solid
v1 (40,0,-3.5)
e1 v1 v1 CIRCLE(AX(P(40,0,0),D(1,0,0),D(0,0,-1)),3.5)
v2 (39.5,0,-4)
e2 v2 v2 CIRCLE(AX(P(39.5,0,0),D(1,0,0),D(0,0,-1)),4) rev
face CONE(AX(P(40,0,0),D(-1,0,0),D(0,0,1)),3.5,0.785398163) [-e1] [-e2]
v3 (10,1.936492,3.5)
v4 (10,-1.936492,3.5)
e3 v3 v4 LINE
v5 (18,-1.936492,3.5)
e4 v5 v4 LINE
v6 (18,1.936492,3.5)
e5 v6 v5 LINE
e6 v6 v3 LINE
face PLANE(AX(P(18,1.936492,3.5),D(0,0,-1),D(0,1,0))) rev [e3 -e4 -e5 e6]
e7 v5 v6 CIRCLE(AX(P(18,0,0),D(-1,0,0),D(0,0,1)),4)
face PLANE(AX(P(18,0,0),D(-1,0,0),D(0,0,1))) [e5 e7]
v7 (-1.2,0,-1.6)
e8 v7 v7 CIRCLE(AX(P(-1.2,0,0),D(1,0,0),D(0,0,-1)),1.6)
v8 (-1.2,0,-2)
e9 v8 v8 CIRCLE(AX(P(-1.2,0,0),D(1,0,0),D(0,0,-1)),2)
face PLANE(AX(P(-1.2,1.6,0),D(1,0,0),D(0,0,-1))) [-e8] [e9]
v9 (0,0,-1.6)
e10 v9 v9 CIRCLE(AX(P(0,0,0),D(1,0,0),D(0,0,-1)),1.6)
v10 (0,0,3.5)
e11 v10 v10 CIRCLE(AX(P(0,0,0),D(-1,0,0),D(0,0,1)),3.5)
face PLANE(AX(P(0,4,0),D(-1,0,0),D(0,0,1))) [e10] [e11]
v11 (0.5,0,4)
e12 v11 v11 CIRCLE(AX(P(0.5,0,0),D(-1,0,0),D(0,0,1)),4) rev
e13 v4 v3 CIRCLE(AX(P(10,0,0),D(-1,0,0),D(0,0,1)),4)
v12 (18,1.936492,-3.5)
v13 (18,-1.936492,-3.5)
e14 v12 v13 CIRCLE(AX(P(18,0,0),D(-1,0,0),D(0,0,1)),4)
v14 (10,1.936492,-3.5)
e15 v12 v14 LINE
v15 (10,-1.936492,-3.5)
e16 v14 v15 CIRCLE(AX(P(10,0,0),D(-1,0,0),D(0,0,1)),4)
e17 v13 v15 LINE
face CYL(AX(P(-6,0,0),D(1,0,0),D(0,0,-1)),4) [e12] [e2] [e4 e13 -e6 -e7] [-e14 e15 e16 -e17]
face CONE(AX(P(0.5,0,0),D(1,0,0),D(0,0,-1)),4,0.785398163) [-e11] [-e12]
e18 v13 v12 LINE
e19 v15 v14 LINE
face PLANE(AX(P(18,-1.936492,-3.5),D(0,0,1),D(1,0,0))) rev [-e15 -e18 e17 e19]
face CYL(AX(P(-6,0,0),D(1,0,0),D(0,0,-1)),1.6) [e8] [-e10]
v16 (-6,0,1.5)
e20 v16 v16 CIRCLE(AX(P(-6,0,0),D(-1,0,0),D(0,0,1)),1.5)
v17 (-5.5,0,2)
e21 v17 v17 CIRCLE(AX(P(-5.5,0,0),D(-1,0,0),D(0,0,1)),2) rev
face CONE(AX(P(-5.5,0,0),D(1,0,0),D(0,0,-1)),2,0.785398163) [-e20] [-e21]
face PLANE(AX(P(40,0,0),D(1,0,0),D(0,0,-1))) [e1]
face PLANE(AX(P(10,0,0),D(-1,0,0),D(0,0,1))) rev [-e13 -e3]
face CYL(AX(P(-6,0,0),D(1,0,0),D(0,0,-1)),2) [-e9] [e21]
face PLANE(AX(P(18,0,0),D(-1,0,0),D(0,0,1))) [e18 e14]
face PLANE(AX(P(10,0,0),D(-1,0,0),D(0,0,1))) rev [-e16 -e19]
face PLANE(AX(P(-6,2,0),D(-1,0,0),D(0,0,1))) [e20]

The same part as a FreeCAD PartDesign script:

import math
import FreeCAD as App
import Part
import Sketcher
from FreeCAD import Vector


def edges_at(feature, points):
    """Names of the edges that pass closest to the given points."""
    edges = feature.Shape.Edges
    near = lambda p: min(range(len(edges)), key=lambda i: edges[i].distToShape(Part.Vertex(*p))[0])
    return sorted({f"Edge{near(p) + 1}" for p in points})

doc = App.newDocument("Part")
params = doc.addObject("Spreadsheet::Sheet", "Params")
for row, (alias, value) in enumerate([
    ("sketch1_width", "46 mm"),
    ("sketch1_width2", "40 mm"),
    ("sketch1_height", "2 mm"),
    ("sketch1_height2", "4 mm"),
    ("sketch1_width3", "1.2 mm"),
    ("revolution_angle", "360 deg"),
    ("sketch2_radius", "4 mm"),
    ("pocket1_length", "8 mm"),
    ("sketch3_radius", "4 mm"),
    ("pocket2_length", "8 mm"),
    ("chamfer_size", "0.5 mm"),
], start=1):
    params.set(f"A{row}", alias)
    params.set(f"B{row}", "=" + value)
    params.setAlias(f"B{row}", alias)

body = doc.addObject("PartDesign::Body", "Body")

sketch1 = doc.addObject("Sketcher::SketchObject", "Sketch")
body.addObject(sketch1)
sketch1.AttachmentSupport = (doc.XY_Plane, [""])
sketch1.MapMode = "FlatFace"
sketch1.addGeometry(Part.LineSegment(Vector(-6, 2, 0), Vector(-6, 0, 0)), False)
sketch1.addGeometry(Part.LineSegment(Vector(-6, 0, 0), Vector(40, 0, 0)), False)
sketch1.addGeometry(Part.LineSegment(Vector(40, 0, 0), Vector(40, 4, 0)), False)
sketch1.addGeometry(Part.LineSegment(Vector(40, 4, 0), Vector(0, 4, 0)), False)
sketch1.addGeometry(Part.LineSegment(Vector(0, 4, 0), Vector(0, 1.6, 0)), False)
sketch1.addGeometry(Part.LineSegment(Vector(0, 1.6, 0), Vector(-1.2, 1.6, 0)), False)
sketch1.addGeometry(Part.LineSegment(Vector(-1.2, 1.6, 0), Vector(-1.2, 2, 0)), False)
sketch1.addGeometry(Part.LineSegment(Vector(-1.2, 2, 0), Vector(-6, 2, 0)), False)
sketch1.addConstraint(Sketcher.Constraint("Coincident", 0, 2, 1, 1))
sketch1.addConstraint(Sketcher.Constraint("Coincident", 1, 2, 2, 1))
sketch1.addConstraint(Sketcher.Constraint("Coincident", 2, 2, 3, 1))
sketch1.addConstraint(Sketcher.Constraint("Coincident", 3, 2, 4, 1))
sketch1.addConstraint(Sketcher.Constraint("Coincident", 4, 2, 5, 1))
sketch1.addConstraint(Sketcher.Constraint("Coincident", 5, 2, 6, 1))
sketch1.addConstraint(Sketcher.Constraint("Coincident", 6, 2, 7, 1))
sketch1.addConstraint(Sketcher.Constraint("Coincident", 7, 2, 0, 1))
sketch1.addConstraint(Sketcher.Constraint("Vertical", 0))
sketch1.addConstraint(Sketcher.Constraint("Horizontal", 1))
sketch1.addConstraint(Sketcher.Constraint("Vertical", 2))
sketch1.addConstraint(Sketcher.Constraint("Horizontal", 3))
sketch1.addConstraint(Sketcher.Constraint("Vertical", 4))
sketch1.addConstraint(Sketcher.Constraint("Horizontal", 5))
sketch1.addConstraint(Sketcher.Constraint("Vertical", 6))
sketch1.addConstraint(Sketcher.Constraint("Horizontal", 7))
sketch1.addConstraint(Sketcher.Constraint("PointOnObject", 0, 2, -1))
sketch1.addConstraint(Sketcher.Constraint("PointOnObject", 3, 2, -2))
sketch1.addConstraint(Sketcher.Constraint("DistanceX", 1, 1, 1, 2, 46.0))
sketch1.addConstraint(Sketcher.Constraint("DistanceX", 3, 2, 3, 1, 40.0))
sketch1.addConstraint(Sketcher.Constraint("DistanceY", 0, 2, 0, 1, 2.0))
sketch1.addConstraint(Sketcher.Constraint("DistanceY", 2, 1, 2, 2, 4.0))
sketch1.addConstraint(Sketcher.Constraint("DistanceX", 5, 2, 5, 1, 1.2))
sketch1.addConstraint(Sketcher.Constraint("DistanceY", 4, 2, 4, 1, 2.4))
sketch1.setExpression("Constraints[18]", "Params.sketch1_width")
sketch1.setExpression("Constraints[19]", "Params.sketch1_width2")
sketch1.setExpression("Constraints[20]", "Params.sketch1_height")
sketch1.setExpression("Constraints[21]", "Params.sketch1_height2")
sketch1.setExpression("Constraints[22]", "Params.sketch1_width3")
revolution = doc.addObject("PartDesign::Revolution", "Revolution")
body.addObject(revolution)
revolution.Profile = sketch1
revolution.ReferenceAxis = (sketch1, ["H_Axis"])
revolution.setExpression("Angle", "Params.revolution_angle")

sketch2 = doc.addObject("Sketcher::SketchObject", "Sketch001")
body.addObject(sketch2)
sketch2.AttachmentSupport = (doc.YZ_Plane, [""])
sketch2.MapMode = "FlatFace"
sketch2.AttachmentOffset = App.Placement(Vector(0, 0, 10), App.Rotation())
sketch2.addGeometry(Part.LineSegment(Vector(-1.936492, -3.5, 0), Vector(1.936492, -3.5, 0)), False)
sketch2.addGeometry(Part.ArcOfCircle(Part.Circle(Vector(0, 0, 0), Vector(0, 0, 1), 4), math.radians(-118.955024), math.radians(-61.044976)), False)
sketch2.addConstraint(Sketcher.Constraint("Coincident", 0, 1, 1, 1))
sketch2.addConstraint(Sketcher.Constraint("Coincident", 1, 2, 0, 2))
sketch2.addConstraint(Sketcher.Constraint("Horizontal", 0))
sketch2.addConstraint(Sketcher.Constraint("Coincident", 1, 3, -1, 1))
sketch2.addConstraint(Sketcher.Constraint("Radius", 1, 4.0))
sketch2.addConstraint(Sketcher.Constraint("DistanceY", 0, 1, -1, 1, 3.5))
sketch2.setExpression("Constraints[4]", "Params.sketch2_radius")
pocket1 = doc.addObject("PartDesign::Pocket", "Pocket")
body.addObject(pocket1)
pocket1.Profile = sketch2
pocket1.setExpression("Length", "Params.pocket1_length")
pocket1.Reversed = True

sketch3 = doc.addObject("Sketcher::SketchObject", "Sketch002")
body.addObject(sketch3)
sketch3.AttachmentSupport = (doc.YZ_Plane, [""])
sketch3.MapMode = "FlatFace"
sketch3.AttachmentOffset = App.Placement(Vector(0, 0, 10), App.Rotation())
sketch3.addGeometry(Part.LineSegment(Vector(1.936492, 3.5, 0), Vector(-1.936492, 3.5, 0)), False)
sketch3.addGeometry(Part.ArcOfCircle(Part.Circle(Vector(0, 0, 0), Vector(0, 0, 1), 4), math.radians(61.044976), math.radians(118.955024)), False)
sketch3.addConstraint(Sketcher.Constraint("Coincident", 0, 1, 1, 1))
sketch3.addConstraint(Sketcher.Constraint("Coincident", 1, 2, 0, 2))
sketch3.addConstraint(Sketcher.Constraint("Horizontal", 0))
sketch3.addConstraint(Sketcher.Constraint("Coincident", 1, 3, -1, 1))
sketch3.addConstraint(Sketcher.Constraint("Radius", 1, 4.0))
sketch3.addConstraint(Sketcher.Constraint("DistanceY", -1, 1, 0, 1, 3.5))
sketch3.setExpression("Constraints[4]", "Params.sketch3_radius")
pocket2 = doc.addObject("PartDesign::Pocket", "Pocket001")
body.addObject(pocket2)
pocket2.Profile = sketch3
pocket2.setExpression("Length", "Params.pocket2_length")
pocket2.Reversed = True
doc.recompute()

chamfer = doc.addObject("PartDesign::Chamfer", "Chamfer")
body.addObject(chamfer)
chamfer.Base = (pocket2, edges_at(pocket2, [(-6, 0, 2), (0, 0, 4), (40, 0, 4)]))
chamfer.setExpression("Size", "Params.chamfer_size")

doc.recompute()
